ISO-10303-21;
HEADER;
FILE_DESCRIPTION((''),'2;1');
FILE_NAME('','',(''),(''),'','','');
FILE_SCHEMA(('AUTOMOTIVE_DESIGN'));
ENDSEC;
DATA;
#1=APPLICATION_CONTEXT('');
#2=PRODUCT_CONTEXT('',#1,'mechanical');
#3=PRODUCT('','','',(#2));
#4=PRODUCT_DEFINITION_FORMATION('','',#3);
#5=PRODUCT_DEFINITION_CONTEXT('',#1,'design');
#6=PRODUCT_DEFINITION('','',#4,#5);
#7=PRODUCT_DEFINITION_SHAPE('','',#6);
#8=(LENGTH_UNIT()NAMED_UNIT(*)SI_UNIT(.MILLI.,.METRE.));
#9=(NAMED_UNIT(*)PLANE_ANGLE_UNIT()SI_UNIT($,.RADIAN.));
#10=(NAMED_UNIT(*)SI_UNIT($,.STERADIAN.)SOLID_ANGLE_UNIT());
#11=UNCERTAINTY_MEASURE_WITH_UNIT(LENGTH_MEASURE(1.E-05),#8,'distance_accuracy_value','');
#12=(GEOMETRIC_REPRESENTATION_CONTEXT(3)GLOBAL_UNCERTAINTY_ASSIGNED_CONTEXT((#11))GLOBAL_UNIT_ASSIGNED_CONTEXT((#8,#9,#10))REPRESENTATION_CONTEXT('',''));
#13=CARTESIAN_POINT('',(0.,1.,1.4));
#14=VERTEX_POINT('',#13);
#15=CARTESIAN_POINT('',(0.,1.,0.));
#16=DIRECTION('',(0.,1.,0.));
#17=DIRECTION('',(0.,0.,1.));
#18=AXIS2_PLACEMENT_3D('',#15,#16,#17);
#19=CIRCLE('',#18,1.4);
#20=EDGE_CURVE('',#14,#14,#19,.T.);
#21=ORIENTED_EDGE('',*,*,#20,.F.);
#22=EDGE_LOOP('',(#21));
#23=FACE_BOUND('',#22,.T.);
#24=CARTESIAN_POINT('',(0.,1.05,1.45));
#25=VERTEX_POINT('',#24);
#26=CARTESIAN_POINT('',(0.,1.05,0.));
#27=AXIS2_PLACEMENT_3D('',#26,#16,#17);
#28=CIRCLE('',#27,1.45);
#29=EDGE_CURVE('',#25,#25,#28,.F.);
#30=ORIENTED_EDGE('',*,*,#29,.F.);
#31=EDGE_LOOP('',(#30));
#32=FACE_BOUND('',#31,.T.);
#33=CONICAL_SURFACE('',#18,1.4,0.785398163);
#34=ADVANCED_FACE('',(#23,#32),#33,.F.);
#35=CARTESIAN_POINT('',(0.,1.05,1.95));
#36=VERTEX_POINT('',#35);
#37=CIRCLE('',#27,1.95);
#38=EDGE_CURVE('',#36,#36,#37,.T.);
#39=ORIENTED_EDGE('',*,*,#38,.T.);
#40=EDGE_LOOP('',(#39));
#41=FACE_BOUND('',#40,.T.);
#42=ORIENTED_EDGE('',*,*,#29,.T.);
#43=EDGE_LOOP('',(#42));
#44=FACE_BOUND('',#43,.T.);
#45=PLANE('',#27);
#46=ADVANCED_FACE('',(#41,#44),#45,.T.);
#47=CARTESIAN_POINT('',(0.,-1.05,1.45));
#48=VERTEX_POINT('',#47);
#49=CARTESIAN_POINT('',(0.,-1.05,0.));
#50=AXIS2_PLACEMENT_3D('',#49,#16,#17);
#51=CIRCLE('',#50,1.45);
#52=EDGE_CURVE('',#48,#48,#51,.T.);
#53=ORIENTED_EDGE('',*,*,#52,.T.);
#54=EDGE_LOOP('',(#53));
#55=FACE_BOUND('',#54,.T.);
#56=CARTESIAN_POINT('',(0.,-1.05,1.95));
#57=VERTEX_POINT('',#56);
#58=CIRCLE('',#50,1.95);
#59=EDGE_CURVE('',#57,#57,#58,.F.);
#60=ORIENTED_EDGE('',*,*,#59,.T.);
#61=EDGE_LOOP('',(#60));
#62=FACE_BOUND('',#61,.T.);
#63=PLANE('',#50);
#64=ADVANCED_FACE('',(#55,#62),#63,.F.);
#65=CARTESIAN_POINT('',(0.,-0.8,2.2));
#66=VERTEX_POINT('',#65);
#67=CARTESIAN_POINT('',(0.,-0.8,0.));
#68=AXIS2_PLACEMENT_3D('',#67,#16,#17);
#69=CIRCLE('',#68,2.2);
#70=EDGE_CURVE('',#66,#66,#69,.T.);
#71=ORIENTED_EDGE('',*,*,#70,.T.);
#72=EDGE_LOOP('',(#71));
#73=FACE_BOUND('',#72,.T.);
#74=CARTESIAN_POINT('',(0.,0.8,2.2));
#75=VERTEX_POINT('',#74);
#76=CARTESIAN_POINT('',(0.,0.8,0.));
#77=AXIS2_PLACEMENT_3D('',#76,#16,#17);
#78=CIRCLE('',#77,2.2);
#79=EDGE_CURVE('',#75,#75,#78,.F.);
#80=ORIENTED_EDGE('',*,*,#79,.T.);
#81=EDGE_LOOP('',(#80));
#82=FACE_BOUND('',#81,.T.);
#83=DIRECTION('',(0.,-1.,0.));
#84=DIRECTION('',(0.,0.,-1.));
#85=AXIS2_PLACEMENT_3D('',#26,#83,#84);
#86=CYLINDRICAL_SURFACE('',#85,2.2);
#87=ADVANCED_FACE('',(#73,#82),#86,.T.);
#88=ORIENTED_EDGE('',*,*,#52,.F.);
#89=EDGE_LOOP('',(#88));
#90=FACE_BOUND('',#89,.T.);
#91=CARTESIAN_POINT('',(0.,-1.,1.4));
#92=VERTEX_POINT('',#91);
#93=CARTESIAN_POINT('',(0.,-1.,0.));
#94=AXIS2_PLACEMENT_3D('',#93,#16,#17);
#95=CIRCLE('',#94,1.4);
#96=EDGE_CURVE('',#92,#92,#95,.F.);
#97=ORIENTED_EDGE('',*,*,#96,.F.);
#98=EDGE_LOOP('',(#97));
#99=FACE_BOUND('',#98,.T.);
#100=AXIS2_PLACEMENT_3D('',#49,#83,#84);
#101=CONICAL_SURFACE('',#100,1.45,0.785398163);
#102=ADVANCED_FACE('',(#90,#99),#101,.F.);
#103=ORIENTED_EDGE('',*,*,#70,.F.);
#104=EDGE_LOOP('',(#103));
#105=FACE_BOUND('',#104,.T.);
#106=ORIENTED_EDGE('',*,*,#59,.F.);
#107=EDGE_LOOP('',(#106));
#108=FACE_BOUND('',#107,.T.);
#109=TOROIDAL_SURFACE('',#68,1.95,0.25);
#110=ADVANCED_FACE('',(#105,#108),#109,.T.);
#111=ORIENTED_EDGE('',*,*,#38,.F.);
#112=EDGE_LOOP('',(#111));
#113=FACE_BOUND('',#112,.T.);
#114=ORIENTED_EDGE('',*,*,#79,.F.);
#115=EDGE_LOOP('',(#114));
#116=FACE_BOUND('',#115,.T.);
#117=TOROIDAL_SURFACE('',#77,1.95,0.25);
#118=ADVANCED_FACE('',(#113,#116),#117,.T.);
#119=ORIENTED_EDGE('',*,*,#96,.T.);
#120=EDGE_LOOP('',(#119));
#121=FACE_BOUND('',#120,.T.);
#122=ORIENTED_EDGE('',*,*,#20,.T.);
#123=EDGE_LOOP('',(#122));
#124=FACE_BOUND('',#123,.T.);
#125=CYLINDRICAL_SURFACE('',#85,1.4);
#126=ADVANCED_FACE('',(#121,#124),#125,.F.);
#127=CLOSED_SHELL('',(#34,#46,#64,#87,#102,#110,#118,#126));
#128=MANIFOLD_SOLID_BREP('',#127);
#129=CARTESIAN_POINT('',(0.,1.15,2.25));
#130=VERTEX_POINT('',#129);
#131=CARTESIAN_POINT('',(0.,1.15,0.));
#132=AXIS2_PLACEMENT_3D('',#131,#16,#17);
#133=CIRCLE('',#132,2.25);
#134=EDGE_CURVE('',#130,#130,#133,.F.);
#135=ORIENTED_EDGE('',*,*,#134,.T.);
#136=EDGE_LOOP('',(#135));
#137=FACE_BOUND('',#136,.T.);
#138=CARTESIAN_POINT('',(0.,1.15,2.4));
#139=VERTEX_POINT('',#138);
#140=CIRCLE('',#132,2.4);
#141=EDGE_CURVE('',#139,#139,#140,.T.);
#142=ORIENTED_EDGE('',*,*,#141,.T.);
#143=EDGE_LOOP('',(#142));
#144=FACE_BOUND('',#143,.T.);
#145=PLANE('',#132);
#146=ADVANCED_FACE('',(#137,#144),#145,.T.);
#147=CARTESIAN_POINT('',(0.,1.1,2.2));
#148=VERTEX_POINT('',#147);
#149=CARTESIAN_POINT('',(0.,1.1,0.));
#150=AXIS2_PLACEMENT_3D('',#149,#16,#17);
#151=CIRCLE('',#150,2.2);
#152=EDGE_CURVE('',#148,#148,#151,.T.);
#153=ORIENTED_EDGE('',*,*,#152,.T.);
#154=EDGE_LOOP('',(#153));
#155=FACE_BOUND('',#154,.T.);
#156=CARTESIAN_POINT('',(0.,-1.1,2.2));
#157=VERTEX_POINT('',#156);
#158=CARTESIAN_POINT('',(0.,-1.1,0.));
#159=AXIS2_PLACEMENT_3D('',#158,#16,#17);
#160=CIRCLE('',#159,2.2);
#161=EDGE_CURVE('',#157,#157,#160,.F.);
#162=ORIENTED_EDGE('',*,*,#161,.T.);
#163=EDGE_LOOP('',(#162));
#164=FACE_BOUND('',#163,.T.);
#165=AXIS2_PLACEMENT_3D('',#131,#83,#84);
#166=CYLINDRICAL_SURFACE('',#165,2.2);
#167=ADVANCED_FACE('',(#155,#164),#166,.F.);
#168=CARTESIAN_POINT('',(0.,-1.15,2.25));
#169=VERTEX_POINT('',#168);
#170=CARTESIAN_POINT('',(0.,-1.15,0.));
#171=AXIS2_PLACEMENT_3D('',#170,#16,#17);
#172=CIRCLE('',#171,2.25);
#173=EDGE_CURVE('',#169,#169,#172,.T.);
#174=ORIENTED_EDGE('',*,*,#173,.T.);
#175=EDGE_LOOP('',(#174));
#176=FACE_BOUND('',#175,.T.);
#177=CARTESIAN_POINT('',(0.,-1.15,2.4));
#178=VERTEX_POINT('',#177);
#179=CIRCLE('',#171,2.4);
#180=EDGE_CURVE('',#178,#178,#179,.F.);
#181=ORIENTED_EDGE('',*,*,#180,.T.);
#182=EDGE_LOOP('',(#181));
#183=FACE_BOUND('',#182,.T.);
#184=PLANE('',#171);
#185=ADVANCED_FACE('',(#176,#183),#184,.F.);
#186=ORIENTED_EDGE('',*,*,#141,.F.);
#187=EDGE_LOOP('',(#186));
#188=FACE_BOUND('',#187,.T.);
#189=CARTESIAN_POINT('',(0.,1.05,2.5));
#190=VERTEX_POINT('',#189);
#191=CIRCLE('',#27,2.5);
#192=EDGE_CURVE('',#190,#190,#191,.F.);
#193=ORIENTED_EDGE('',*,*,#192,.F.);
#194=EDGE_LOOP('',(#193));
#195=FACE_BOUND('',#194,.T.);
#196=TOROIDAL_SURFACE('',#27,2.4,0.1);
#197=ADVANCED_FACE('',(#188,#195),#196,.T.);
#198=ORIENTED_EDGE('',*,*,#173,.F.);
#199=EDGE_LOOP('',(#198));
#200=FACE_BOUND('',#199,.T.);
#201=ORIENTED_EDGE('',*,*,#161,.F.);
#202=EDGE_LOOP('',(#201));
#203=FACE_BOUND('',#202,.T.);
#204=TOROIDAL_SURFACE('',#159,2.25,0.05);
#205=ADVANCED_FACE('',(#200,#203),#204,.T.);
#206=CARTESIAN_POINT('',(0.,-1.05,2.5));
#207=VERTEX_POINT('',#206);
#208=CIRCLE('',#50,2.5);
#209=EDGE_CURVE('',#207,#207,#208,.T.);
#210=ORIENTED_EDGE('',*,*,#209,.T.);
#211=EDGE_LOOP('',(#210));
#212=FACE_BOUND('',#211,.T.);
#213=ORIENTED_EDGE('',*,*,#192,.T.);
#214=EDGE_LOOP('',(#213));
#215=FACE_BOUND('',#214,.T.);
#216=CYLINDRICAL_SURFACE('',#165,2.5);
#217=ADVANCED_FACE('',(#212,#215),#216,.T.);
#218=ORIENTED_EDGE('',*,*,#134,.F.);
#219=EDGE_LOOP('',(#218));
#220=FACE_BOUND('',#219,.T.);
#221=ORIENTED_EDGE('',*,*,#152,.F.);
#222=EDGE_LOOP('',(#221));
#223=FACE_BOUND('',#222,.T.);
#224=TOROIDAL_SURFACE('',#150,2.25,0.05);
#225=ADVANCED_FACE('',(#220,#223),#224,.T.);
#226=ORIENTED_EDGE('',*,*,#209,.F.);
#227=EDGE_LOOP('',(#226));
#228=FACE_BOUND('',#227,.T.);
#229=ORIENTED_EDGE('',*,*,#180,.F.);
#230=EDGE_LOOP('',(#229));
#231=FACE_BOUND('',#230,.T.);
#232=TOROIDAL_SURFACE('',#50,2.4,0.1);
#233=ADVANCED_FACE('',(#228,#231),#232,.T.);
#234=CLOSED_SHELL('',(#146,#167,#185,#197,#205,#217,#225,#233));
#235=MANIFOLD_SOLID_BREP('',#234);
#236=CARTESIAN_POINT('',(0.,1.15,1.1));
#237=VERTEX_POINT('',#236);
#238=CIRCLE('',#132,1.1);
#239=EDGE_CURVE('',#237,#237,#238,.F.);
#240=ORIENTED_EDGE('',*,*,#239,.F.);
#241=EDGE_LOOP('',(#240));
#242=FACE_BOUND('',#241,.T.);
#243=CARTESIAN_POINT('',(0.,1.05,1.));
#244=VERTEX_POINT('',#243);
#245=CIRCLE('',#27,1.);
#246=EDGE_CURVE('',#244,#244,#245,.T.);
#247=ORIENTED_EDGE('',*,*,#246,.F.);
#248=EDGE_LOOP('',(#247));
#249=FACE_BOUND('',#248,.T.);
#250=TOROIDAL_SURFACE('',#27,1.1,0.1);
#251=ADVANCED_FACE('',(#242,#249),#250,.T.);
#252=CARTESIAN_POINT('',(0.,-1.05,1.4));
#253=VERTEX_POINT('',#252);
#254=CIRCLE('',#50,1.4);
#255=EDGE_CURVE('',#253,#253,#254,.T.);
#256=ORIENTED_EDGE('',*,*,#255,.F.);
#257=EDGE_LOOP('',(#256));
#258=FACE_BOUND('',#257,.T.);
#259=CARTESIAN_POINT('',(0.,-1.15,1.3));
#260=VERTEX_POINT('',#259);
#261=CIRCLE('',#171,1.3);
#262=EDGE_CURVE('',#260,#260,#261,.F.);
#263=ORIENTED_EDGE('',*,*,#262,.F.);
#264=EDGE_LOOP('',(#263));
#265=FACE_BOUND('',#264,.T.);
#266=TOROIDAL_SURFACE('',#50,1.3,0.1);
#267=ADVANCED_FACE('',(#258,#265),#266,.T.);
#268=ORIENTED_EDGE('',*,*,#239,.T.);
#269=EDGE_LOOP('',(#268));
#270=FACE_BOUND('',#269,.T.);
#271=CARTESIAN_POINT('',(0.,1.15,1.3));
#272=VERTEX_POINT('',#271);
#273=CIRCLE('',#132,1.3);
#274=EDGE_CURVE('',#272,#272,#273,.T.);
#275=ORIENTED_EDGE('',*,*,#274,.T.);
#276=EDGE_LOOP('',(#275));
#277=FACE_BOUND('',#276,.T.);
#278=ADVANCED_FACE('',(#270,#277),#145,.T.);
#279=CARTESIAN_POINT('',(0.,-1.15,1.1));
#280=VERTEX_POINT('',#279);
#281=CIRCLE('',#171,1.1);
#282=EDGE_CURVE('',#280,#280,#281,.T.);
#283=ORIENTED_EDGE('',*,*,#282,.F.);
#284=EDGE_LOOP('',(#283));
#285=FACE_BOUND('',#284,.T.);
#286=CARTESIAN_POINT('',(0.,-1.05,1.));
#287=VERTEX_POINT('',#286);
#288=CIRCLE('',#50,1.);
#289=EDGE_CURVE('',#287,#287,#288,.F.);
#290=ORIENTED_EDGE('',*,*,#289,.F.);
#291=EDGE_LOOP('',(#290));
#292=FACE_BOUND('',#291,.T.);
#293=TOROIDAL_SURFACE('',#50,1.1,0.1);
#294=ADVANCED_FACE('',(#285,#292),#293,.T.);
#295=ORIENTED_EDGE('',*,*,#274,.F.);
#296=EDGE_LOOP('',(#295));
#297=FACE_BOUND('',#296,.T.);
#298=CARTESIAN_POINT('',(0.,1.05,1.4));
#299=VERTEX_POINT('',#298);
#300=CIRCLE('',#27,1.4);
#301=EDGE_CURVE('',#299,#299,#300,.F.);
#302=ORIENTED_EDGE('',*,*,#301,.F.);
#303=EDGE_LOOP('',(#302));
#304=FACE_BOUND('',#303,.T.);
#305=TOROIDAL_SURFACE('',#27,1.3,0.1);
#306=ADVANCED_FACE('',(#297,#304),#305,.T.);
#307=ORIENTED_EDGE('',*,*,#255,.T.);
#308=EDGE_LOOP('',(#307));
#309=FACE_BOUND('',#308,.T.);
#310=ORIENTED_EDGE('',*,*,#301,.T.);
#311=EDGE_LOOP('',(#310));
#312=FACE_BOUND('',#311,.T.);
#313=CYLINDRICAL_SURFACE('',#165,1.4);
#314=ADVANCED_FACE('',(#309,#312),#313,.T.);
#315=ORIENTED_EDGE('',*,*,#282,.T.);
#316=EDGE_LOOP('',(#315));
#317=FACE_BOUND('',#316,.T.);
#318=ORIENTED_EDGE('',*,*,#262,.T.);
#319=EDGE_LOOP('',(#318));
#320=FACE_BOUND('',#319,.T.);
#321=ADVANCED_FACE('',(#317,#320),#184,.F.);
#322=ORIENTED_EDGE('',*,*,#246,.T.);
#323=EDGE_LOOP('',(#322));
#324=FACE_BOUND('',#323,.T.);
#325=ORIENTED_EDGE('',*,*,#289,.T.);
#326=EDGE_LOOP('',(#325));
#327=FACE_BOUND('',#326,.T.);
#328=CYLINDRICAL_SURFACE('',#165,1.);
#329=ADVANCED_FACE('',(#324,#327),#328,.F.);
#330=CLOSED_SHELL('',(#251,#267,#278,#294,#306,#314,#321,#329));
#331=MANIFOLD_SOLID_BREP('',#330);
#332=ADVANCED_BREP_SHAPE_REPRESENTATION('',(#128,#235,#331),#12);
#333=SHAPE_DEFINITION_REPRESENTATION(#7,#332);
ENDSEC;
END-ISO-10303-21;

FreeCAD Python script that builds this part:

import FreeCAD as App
import Part
import Sketcher
from FreeCAD import Vector
Q = App.Units.Quantity


def edges_at(feature, points):
    """Names of the edges that pass closest to the given points."""
    edges = feature.Shape.Edges
    near = lambda p: min(range(len(edges)), key=lambda i: edges[i].distToShape(Part.Vertex(*p))[0])
    return sorted({f"Edge{near(p) + 1}" for p in points})

doc = App.newDocument("Part")
body = doc.addObject("PartDesign::Body", "Body")

# Sketch on XZ plane
sketch1 = body.newObject("Sketcher::SketchObject", "Sketch")
sketch1.AttachmentSupport = (doc.getObject("XZ_Plane"), [""])
sketch1.MapMode = "FlatFace"
sketch1.addGeometry(Part.Circle(Vector(0, 0, 0), Vector(0, 0, 1), 1.4), False)
sketch1.addGeometry(Part.Circle(Vector(0, 0, 0), Vector(0, 0, 1), 1), False)
sketch1.addConstraint(Sketcher.Constraint("Coincident", 0, 3, -1, 1))
sketch1.addConstraint(Sketcher.Constraint("Coincident", 1, 3, -1, 1))
sketch1.addConstraint(Sketcher.Constraint("Diameter", 1, Q("2 mm")))
sketch1.addConstraint(Sketcher.Constraint("Diameter", 0, Q("2.8 mm")))
pad1 = body.newObject("PartDesign::Pad", "Pad")
pad1.Profile = sketch1
pad1.Length = 2.3
pad1.Midplane = True
doc.recompute()

fillet = body.newObject("PartDesign::Fillet", "Fillet")
fillet.Base = (pad1, edges_at(pad1, [
    (0, -1.15, -1.4),
    (0, 1.15, -1.4),
    (0, -1.15, -1),
    (0, 1.15, -1),
]))
fillet.Radius = 0.1
body2 = doc.addObject("PartDesign::Body", "Body001")

# Sketch on XZ plane
sketch2 = body2.newObject("Sketcher::SketchObject", "Sketch001")
sketch2.AttachmentSupport = (doc.getObject("XZ_Plane001"), [""])
sketch2.MapMode = "FlatFace"
sketch2.addGeometry(Part.Circle(Vector(0, 0, 0), Vector(0, 0, 1), 2.5), False)
sketch2.addGeometry(Part.Circle(Vector(0, 0, 0), Vector(0, 0, 1), 2.2), False)
sketch2.addConstraint(Sketcher.Constraint("Coincident", 0, 3, -1, 1))
sketch2.addConstraint(Sketcher.Constraint("Coincident", 1, 3, -1, 1))
sketch2.addConstraint(Sketcher.Constraint("Diameter", 0, Q("5 mm")))
sketch2.addConstraint(Sketcher.Constraint("Diameter", 1, Q("4.4 mm")))
pad2 = body2.newObject("PartDesign::Pad", "Pad001")
pad2.Profile = sketch2
pad2.Length = 2.3
pad2.Midplane = True
doc.recompute()

fillet2 = body2.newObject("PartDesign::Fillet", "Fillet001")
fillet2.Base = (pad2, edges_at(pad2, [(0, -1.15, -2.5), (0, 1.15, -2.5)]))
fillet2.Radius = 0.1
doc.recompute()

fillet3 = body2.newObject("PartDesign::Fillet", "Fillet002")
fillet3.Base = (fillet2, edges_at(fillet2, [(0, -1.15, -2.2), (0, 1.15, -2.2)]))
fillet3.Radius = 0.05
body3 = doc.addObject("PartDesign::Body", "Body002")

# Sketch on XZ plane
sketch3 = body3.newObject("Sketcher::SketchObject", "Sketch002")
sketch3.AttachmentSupport = (doc.getObject("XZ_Plane002"), [""])
sketch3.MapMode = "FlatFace"
sketch3.addGeometry(Part.Circle(Vector(0, 0, 0), Vector(0, 0, 1), 2.2), False)
sketch3.addGeometry(Part.Circle(Vector(0, 0, 0), Vector(0, 0, 1), 1.4), False)
sketch3.addConstraint(Sketcher.Constraint("Coincident", 0, 3, -1, 1))
sketch3.addConstraint(Sketcher.Constraint("Coincident", 1, 3, -1, 1))
sketch3.addConstraint(Sketcher.Constraint("Diameter", 0, Q("4.4 mm")))
sketch3.addConstraint(Sketcher.Constraint("Diameter", 1, Q("2.8 mm")))
pad3 = body3.newObject("PartDesign::Pad", "Pad002")
pad3.Profile = sketch3
pad3.Length = 2.1
pad3.Midplane = True
doc.recompute()

fillet4 = body3.newObject("PartDesign::Fillet", "Fillet003")
fillet4.Base = (pad3, edges_at(pad3, [(0, -1.05, -2.2), (0, 1.05, -2.2)]))
fillet4.Radius = 0.25
doc.recompute()

chamfer = body3.newObject("PartDesign::Chamfer", "Chamfer")
chamfer.Base = (fillet4, edges_at(fillet4, [(0, -1.05, -1.4), (0, 1.05, -1.4)]))
chamfer.Size = 0.05

doc.recompute()
